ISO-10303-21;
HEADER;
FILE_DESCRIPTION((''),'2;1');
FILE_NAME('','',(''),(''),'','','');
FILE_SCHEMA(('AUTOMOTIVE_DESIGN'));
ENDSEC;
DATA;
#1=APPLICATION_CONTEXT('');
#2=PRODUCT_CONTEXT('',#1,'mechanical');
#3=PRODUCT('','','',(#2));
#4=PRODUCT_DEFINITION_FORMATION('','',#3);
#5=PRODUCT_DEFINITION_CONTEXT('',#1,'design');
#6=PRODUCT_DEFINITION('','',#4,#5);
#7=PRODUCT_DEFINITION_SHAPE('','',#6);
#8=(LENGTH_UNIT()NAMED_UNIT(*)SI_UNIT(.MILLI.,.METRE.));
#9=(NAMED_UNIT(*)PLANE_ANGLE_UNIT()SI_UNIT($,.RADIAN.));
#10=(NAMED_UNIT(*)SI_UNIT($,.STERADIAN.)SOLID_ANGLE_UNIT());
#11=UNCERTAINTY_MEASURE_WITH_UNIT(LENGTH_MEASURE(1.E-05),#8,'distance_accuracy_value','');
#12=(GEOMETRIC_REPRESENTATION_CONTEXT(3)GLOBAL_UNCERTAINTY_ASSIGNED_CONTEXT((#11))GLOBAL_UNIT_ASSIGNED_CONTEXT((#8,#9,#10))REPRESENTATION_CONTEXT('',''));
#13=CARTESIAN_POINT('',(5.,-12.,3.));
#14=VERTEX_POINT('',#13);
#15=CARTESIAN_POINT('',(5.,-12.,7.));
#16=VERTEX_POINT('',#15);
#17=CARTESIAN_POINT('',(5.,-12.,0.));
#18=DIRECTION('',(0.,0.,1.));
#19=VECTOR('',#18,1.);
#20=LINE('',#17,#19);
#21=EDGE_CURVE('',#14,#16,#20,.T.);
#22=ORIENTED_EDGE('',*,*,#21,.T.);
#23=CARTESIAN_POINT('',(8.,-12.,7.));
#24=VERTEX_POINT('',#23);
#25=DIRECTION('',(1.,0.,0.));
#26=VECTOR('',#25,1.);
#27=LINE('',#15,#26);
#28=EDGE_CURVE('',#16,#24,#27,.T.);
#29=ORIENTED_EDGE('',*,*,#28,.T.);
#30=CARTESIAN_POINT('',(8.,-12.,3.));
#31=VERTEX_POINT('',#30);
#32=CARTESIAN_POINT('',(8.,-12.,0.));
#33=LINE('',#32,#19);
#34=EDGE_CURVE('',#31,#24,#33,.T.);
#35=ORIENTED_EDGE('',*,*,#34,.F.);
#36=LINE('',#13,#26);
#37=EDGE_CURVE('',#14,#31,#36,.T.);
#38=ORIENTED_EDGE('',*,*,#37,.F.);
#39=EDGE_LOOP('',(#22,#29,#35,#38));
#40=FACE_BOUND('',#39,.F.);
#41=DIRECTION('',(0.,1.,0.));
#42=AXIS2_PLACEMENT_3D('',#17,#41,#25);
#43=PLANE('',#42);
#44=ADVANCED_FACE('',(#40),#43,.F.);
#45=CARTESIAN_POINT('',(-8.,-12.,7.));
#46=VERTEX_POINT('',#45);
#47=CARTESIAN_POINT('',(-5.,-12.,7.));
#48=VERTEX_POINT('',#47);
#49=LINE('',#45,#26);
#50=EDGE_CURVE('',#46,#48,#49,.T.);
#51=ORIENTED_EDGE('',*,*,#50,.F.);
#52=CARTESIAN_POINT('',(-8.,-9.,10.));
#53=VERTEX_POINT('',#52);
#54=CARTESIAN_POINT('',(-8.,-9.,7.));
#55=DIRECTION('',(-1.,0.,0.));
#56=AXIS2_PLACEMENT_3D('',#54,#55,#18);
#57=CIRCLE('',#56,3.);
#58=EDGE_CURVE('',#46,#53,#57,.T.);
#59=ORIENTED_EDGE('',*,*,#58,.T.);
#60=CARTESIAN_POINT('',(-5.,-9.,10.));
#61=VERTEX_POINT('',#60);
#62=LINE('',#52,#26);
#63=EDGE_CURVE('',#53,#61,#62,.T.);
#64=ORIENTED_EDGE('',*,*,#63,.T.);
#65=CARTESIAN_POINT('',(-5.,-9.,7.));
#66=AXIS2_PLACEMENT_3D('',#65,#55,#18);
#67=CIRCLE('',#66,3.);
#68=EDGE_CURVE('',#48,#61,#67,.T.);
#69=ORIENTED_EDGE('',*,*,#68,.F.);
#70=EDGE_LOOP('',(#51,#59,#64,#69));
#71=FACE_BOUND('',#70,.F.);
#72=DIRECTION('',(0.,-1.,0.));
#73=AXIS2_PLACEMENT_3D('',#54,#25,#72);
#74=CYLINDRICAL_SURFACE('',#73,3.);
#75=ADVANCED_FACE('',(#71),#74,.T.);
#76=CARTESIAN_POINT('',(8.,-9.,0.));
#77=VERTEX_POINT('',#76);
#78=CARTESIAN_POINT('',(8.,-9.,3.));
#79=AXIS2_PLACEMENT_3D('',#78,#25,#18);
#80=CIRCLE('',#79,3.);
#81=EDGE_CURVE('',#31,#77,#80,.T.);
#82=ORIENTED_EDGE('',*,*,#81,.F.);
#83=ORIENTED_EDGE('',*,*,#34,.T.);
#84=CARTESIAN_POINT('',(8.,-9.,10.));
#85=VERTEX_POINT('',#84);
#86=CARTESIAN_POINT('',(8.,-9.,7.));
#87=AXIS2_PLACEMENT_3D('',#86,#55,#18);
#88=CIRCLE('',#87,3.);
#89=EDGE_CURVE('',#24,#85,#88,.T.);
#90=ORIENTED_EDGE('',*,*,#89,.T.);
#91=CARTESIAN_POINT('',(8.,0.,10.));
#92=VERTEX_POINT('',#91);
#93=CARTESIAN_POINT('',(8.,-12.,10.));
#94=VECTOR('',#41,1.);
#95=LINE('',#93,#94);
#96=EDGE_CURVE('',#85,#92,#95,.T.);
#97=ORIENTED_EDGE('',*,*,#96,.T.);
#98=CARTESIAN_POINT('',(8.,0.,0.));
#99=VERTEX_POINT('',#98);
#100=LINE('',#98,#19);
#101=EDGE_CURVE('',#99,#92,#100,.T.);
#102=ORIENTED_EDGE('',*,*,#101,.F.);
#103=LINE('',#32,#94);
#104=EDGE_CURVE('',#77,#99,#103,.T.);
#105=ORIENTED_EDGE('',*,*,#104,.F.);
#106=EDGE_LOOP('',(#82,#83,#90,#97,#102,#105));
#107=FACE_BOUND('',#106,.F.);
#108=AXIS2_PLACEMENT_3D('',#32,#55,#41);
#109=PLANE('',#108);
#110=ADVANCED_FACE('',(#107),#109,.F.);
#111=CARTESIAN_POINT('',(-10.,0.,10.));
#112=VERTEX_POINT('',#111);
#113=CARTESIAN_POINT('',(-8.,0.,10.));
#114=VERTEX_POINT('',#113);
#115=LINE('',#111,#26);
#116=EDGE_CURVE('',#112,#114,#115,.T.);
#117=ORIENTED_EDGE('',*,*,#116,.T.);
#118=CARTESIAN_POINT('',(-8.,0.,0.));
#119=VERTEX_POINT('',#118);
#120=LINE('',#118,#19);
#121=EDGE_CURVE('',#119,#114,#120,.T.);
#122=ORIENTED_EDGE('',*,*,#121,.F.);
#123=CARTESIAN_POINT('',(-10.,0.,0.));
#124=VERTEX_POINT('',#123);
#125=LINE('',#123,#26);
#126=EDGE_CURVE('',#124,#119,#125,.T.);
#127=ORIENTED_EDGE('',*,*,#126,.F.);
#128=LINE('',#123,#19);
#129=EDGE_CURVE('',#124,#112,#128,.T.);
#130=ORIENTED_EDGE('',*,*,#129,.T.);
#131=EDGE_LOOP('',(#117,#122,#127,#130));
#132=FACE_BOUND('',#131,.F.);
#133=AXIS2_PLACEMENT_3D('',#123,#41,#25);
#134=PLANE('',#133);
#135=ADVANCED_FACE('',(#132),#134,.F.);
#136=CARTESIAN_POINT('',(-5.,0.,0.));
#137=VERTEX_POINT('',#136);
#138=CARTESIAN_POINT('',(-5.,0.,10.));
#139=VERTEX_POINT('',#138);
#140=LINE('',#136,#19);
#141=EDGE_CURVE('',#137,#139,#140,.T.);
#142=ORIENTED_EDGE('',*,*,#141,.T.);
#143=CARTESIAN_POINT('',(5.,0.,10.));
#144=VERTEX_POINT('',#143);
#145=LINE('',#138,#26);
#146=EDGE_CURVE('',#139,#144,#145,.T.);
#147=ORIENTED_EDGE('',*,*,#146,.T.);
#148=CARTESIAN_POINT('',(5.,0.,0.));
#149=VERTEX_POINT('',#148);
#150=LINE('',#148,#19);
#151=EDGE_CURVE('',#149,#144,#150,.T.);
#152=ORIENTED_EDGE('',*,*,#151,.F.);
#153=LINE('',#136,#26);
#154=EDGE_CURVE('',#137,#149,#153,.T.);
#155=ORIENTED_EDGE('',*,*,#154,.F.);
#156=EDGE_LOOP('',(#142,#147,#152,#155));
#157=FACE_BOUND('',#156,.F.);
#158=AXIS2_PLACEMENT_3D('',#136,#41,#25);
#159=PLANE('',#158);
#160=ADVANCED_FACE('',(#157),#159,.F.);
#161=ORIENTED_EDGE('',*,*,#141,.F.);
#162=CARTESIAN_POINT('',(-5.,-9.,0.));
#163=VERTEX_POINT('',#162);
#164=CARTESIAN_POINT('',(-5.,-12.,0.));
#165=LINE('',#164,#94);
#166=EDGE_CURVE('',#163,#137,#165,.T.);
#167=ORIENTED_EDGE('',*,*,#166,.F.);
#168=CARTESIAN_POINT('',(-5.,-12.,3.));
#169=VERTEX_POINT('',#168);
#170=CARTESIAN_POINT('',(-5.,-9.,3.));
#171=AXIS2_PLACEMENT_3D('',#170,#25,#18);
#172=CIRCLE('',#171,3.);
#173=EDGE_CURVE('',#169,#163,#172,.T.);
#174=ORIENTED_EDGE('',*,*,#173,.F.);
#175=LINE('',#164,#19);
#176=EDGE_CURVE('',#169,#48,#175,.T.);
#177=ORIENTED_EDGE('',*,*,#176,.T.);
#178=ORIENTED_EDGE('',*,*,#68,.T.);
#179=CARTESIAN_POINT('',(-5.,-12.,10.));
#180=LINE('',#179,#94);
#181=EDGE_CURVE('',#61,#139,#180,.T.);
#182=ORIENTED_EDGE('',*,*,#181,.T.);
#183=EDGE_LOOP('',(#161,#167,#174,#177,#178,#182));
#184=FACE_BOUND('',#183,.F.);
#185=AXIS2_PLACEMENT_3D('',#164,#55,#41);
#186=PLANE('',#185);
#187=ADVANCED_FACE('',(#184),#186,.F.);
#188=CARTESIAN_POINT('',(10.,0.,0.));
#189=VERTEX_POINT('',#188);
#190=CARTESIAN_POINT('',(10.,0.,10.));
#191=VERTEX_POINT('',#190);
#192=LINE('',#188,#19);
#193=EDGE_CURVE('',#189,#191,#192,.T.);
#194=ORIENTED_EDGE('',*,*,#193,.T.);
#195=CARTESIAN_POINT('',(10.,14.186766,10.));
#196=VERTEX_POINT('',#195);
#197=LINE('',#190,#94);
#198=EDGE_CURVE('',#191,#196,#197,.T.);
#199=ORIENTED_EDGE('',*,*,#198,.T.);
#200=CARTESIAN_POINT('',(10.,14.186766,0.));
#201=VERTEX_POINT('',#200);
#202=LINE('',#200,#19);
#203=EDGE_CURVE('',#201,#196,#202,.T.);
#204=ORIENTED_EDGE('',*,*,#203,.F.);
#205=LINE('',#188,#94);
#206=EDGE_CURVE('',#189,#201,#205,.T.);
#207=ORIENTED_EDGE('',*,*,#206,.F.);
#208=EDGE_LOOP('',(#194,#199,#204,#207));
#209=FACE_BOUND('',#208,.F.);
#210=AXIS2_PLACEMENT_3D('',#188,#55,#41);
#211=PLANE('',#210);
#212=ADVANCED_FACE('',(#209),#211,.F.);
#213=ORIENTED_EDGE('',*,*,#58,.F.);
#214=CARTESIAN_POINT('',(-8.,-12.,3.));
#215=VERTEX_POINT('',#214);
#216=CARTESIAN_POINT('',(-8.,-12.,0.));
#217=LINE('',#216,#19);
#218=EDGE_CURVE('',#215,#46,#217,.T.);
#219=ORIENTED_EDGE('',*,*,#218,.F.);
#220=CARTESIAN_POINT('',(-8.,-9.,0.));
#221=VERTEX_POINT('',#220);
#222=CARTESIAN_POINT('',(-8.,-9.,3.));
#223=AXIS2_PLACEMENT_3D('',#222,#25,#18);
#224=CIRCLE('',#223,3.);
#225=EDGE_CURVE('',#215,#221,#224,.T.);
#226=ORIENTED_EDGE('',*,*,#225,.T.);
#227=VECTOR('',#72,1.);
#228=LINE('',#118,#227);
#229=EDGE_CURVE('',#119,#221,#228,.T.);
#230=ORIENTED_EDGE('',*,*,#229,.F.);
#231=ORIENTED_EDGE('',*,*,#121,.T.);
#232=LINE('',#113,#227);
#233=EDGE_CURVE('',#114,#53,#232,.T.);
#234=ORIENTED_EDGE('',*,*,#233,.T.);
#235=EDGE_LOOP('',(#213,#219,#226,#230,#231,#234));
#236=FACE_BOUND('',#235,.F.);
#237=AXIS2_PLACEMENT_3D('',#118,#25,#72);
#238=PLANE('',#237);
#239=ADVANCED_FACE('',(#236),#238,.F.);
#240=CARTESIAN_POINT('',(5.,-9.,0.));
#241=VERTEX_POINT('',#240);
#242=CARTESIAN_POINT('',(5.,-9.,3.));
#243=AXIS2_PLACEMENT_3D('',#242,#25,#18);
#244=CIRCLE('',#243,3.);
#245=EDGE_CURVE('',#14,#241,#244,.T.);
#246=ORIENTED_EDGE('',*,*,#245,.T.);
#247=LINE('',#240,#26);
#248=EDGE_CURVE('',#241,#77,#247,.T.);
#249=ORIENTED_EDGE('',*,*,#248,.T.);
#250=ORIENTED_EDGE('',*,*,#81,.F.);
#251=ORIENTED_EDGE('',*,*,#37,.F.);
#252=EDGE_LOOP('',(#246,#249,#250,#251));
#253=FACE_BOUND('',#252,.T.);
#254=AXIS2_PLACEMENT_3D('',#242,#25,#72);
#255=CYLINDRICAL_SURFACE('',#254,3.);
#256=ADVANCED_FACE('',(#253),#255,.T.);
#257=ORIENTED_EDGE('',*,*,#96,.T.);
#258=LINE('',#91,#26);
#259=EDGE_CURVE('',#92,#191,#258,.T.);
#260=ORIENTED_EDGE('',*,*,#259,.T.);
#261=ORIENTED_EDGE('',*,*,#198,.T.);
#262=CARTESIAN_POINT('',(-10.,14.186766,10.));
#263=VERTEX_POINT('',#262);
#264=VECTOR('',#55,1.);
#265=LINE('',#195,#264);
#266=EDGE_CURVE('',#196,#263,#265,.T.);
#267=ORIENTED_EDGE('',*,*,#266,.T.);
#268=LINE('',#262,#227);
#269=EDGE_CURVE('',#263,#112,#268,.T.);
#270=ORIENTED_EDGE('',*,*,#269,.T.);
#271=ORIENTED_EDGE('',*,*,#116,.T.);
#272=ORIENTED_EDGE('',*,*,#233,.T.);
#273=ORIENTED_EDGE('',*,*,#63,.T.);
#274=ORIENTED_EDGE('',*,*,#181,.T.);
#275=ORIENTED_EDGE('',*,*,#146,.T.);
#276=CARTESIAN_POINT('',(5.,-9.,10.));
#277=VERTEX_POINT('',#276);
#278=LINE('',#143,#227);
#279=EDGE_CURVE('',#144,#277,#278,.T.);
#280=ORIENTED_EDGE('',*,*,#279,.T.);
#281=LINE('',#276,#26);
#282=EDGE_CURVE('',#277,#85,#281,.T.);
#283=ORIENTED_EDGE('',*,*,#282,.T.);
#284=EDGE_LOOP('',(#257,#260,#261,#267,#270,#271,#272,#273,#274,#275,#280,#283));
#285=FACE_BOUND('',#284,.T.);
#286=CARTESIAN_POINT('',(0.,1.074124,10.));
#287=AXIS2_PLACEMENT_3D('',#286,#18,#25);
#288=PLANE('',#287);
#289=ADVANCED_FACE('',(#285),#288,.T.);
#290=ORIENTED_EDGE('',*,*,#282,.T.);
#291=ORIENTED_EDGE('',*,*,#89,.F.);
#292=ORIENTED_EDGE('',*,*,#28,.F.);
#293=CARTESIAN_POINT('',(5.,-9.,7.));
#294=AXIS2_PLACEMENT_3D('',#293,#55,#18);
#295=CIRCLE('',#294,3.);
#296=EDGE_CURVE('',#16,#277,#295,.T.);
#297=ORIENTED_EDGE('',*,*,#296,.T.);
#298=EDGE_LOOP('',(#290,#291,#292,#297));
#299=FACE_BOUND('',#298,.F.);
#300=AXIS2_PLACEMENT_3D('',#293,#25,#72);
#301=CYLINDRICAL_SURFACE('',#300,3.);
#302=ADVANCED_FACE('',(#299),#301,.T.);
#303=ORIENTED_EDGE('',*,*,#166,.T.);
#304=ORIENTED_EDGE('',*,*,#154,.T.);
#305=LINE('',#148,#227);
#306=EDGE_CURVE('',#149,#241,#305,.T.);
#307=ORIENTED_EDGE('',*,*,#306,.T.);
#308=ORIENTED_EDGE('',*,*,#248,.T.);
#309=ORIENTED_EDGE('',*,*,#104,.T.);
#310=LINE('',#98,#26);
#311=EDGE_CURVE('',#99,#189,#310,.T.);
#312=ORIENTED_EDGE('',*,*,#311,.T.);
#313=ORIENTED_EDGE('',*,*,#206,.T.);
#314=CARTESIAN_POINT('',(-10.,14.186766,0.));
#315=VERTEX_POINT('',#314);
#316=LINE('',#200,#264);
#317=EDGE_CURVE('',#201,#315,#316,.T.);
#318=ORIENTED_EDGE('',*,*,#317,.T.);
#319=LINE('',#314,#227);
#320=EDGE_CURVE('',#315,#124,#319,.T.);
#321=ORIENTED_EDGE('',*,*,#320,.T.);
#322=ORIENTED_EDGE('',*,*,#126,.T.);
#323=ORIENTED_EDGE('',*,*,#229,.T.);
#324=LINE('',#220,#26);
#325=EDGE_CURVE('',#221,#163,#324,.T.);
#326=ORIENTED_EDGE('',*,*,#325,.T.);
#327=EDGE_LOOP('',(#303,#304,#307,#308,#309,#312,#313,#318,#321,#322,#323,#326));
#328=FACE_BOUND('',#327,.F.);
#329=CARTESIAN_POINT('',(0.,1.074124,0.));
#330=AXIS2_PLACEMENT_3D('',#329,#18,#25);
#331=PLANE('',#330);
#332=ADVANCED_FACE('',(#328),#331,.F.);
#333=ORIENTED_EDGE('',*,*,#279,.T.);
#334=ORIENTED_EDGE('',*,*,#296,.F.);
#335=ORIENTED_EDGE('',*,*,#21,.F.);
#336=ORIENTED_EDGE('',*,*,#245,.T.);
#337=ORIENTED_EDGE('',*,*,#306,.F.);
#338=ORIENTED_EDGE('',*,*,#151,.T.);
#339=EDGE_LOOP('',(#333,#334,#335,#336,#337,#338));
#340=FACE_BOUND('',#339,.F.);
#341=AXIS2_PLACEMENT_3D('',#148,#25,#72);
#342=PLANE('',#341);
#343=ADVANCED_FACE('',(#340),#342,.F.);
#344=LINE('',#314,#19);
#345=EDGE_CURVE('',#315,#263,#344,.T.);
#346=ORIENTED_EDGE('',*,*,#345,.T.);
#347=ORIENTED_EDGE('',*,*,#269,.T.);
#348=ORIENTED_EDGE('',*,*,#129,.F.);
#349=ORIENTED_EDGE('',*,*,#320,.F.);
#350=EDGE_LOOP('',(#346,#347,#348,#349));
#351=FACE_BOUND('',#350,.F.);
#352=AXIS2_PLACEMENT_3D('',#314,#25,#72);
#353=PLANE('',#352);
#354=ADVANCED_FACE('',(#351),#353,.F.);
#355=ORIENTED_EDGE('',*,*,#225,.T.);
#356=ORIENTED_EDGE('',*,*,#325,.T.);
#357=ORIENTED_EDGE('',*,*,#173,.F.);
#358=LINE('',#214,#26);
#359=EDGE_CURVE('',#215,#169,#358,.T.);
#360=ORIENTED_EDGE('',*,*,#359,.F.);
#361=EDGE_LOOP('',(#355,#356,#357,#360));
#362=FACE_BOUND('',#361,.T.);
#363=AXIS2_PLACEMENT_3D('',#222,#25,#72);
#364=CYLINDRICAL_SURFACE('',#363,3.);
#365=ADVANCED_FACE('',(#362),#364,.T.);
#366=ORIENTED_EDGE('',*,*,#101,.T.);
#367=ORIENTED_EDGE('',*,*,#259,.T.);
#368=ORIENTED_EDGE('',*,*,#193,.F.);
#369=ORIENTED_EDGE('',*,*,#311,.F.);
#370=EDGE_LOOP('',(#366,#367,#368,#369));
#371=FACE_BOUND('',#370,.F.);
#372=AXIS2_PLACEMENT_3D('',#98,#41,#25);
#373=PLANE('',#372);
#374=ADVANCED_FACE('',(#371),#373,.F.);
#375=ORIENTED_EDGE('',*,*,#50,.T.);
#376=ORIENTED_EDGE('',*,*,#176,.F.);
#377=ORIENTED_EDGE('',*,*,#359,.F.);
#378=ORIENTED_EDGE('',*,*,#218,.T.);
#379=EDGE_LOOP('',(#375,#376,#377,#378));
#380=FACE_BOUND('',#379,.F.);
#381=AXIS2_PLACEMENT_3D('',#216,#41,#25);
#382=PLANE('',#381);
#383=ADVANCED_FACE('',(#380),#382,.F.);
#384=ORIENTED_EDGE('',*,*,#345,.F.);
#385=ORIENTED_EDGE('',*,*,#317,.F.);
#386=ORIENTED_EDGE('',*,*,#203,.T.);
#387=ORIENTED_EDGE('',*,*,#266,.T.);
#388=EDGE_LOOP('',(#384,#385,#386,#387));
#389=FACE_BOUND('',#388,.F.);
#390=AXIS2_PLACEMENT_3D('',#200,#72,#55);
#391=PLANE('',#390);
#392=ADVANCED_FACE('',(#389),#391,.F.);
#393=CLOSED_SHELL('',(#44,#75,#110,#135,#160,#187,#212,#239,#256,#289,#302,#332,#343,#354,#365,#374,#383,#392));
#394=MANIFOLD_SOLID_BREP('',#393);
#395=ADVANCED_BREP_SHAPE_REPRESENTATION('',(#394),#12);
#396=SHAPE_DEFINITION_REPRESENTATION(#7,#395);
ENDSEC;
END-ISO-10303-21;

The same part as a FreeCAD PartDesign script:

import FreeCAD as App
import Part
import Sketcher
from FreeCAD import Vector
Q = App.Units.Quantity


def edges_at(feature, points):
    """Names of the edges that pass closest to the given points."""
    edges = feature.Shape.Edges
    near = lambda p: min(range(len(edges)), key=lambda i: edges[i].distToShape(Part.Vertex(*p))[0])
    return sorted({f"Edge{near(p) + 1}" for p in points})


def add_polygon(sketch, points):
    """Adds a closed chain of lines whose ends are joined by coincident constraints."""
    first, n = sketch.GeometryCount, len(points)
    for a, b in zip(points, points[1:] + points[:1]):
        sketch.addGeometry(Part.LineSegment(App.Vector(*a, 0), App.Vector(*b, 0)), False)
    for i in range(n):
        sketch.addConstraint(Sketcher.Constraint("Coincident", first + i, 2, first + (i + 1) % n, 1))

doc = App.newDocument("Part")
body = doc.addObject("PartDesign::Body", "Body")

sketch1 = body.newObject("Sketcher::SketchObject", "Sketch")
sketch1.AttachmentSupport = (doc.getObject("XY_Plane"), [""])
sketch1.MapMode = "FlatFace"
add_polygon(sketch1, [(-5, 0), (5, 0), (5, -12), (8, -12), (8, 0), (10, 0), (10, 14.2), (-10, 14.2), (-10, 0), (-8, 0), (-8, -12), (-5, -12)])
sketch1.addConstraint(Sketcher.Constraint("Horizontal", 0))
sketch1.addConstraint(Sketcher.Constraint("Vertical", 1))
sketch1.addConstraint(Sketcher.Constraint("Horizontal", 2))
sketch1.addConstraint(Sketcher.Constraint("Vertical", 3))
sketch1.addConstraint(Sketcher.Constraint("Horizontal", 4))
sketch1.addConstraint(Sketcher.Constraint("Vertical", 5))
sketch1.addConstraint(Sketcher.Constraint("Horizontal", 6))
sketch1.addConstraint(Sketcher.Constraint("Vertical", 7))
sketch1.addConstraint(Sketcher.Constraint("Horizontal", 8))
sketch1.addConstraint(Sketcher.Constraint("Vertical", 9))
sketch1.addConstraint(Sketcher.Constraint("Horizontal", 10))
sketch1.addConstraint(Sketcher.Constraint("Vertical", 11))
sketch1.addConstraint(Sketcher.Constraint("Symmetric", 4, 2, 7, 2, -1, 1))
sketch1.addConstraint(Sketcher.Constraint("Symmetric", 0, 2, 11, 2, -1, 1))
sketch1.addConstraint(Sketcher.Constraint("Symmetric", 3, 2, 8, 2, -2))
sketch1.addConstraint(Sketcher.Constraint("Horizontal", 2, 2, 9, 2))
sketch1.addConstraint(Sketcher.Constraint("DistanceX", 0, 1, 0, 2, Q("10 mm")))
sketch1.addConstraint(Sketcher.Constraint("DistanceX", 2, 1, 2, 2, Q("3 mm")))
sketch1.addConstraint(Sketcher.Constraint("DistanceX", 4, 1, 4, 2, Q("2 mm")))
sketch1.addConstraint(Sketcher.Constraint("DistanceY", 1, 2, 1, 1, Q("12 mm")))
sketch1.addConstraint(Sketcher.Constraint("DistanceY", 5, 1, 5, 2, Q("14.186766 mm")))
pad1 = body.newObject("PartDesign::Pad", "Pad")
pad1.Profile = sketch1
pad1.Length = 10
doc.recompute()

fillet = body.newObject("PartDesign::Fillet", "Fillet")
fillet.Base = (pad1, edges_at(pad1, [
    (6.5, -12, 0),
    (6.5, -12, 10),
    (-6.5, -12, 0),
    (-6.5, -12, 10),
]))
fillet.Radius = 3

doc.recompute()
